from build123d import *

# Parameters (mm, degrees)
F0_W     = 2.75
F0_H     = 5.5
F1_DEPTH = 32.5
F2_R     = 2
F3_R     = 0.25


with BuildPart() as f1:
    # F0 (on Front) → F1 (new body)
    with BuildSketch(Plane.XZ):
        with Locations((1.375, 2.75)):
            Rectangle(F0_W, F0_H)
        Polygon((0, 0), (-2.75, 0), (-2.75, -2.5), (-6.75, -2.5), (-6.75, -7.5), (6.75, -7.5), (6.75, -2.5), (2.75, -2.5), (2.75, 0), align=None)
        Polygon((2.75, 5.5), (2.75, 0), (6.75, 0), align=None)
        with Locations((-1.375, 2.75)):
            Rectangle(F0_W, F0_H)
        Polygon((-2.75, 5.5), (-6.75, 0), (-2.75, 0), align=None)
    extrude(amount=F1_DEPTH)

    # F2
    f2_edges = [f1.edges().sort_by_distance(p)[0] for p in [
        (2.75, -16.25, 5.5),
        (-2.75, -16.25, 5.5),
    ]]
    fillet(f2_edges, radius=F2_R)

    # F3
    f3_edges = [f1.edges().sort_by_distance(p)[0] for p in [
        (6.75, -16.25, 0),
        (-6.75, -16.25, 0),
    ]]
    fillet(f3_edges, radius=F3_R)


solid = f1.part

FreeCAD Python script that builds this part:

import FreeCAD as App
import Part
import Sketcher
from FreeCAD import Vector


def edges_at(feature, points):
    """Names of the edges that pass closest to the given points."""
    edges = feature.Shape.Edges
    near = lambda p: min(range(len(edges)), key=lambda i: edges[i].distToShape(Part.Vertex(*p))[0])
    return sorted({f"Edge{near(p) + 1}" for p in points})

doc = App.newDocument("Part")
params = doc.addObject("Spreadsheet::Sheet", "Params")
for row, (alias, value) in enumerate([
    ("sketch1_width", "4 mm"),
    ("sketch1_height", "5 mm"),
    ("sketch1_width2", "13.5 mm"),
    ("sketch1_height2", "2.5 mm"),
    ("pad1_length", "32.5 mm"),
    ("fillet_radius", "2 mm"),
    ("fillet2_radius", "0.25 mm"),
], start=1):
    params.set(f"A{row}", alias)
    params.set(f"B{row}", "=" + value)
    params.setAlias(f"B{row}", alias)

body = doc.addObject("PartDesign::Body", "Body")

# Sketch on XZ plane
sketch1 = doc.addObject("Sketcher::SketchObject", "Sketch")
body.addObject(sketch1)
sketch1.AttachmentSupport = (doc.XZ_Plane, [""])
sketch1.MapMode = "FlatFace"
sketch1.addGeometry([
    Part.LineSegment(Vector(-2.75, -2.5, 0), Vector(-6.75, -2.5, 0)),  # 0
    Part.LineSegment(Vector(-6.75, -2.5, 0), Vector(-6.75, -7.5, 0)),  # 1
    Part.LineSegment(Vector(-6.75, -7.5, 0), Vector(6.75, -7.5, 0)),  # 2
    Part.LineSegment(Vector(6.75, -7.5, 0), Vector(6.75, -2.5, 0)),  # 3
    Part.LineSegment(Vector(6.75, -2.5, 0), Vector(2.75, -2.5, 0)),  # 4
    Part.LineSegment(Vector(2.75, -2.5, 0), Vector(2.75, 0, 0)),  # 5
    Part.LineSegment(Vector(2.75, 0, 0), Vector(6.75, 0, 0)),  # 6
    Part.LineSegment(Vector(6.75, 0, 0), Vector(2.75, 5.5, 0)),  # 7
    Part.LineSegment(Vector(2.75, 5.5, 0), Vector(-2.75, 5.5, 0)),  # 8
    Part.LineSegment(Vector(-2.75, 5.5, 0), Vector(-6.75, 0, 0)),  # 9
    Part.LineSegment(Vector(-6.75, 0, 0), Vector(-2.75, 0, 0)),  # 10
    Part.LineSegment(Vector(-2.75, 0, 0), Vector(-2.75, -2.5, 0)),  # 11
], False)
sketch1.addConstraint([
    Sketcher.Constraint("Coincident", 0, 2, 1, 1),
    Sketcher.Constraint("Coincident", 1, 2, 2, 1),
    Sketcher.Constraint("Coincident", 2, 2, 3, 1),
    Sketcher.Constraint("Coincident", 3, 2, 4, 1),
    Sketcher.Constraint("Coincident", 4, 2, 5, 1),
    Sketcher.Constraint("Coincident", 5, 2, 6, 1),
    Sketcher.Constraint("Coincident", 6, 2, 7, 1),
    Sketcher.Constraint("Coincident", 7, 2, 8, 1),
    Sketcher.Constraint("Coincident", 8, 2, 9, 1),
    Sketcher.Constraint("Coincident", 9, 2, 10, 1),
    Sketcher.Constraint("Coincident", 10, 2, 11, 1),
    Sketcher.Constraint("Coincident", 11, 2, 0, 1),
    Sketcher.Constraint("Horizontal", 0),
    Sketcher.Constraint("Vertical", 1),
    Sketcher.Constraint("Horizontal", 2),
    Sketcher.Constraint("Vertical", 3),
    Sketcher.Constraint("Horizontal", 4),
    Sketcher.Constraint("Vertical", 5),
    Sketcher.Constraint("Horizontal", 6),
    Sketcher.Constraint("Horizontal", 8),
    Sketcher.Constraint("Horizontal", 10),
    Sketcher.Constraint("Vertical", 11),
    Sketcher.Constraint("Symmetric", 6, 2, 9, 2, -1, 1),
    Sketcher.Constraint("Symmetric", 0, 2, 3, 2, -2),
    Sketcher.Constraint("Symmetric", 5, 2, 10, 2, -2),
    Sketcher.Constraint("Vertical", 3, 2, 6, 2),
    Sketcher.Constraint("Vertical", 5, 2, 7, 2),
    Sketcher.Constraint("Vertical", 8, 2, 10, 2),
    Sketcher.Constraint("DistanceX", 0, 2, 0, 1, 4.0),
    Sketcher.Constraint("DistanceY", 1, 2, 1, 1, 5.0),
    Sketcher.Constraint("DistanceX", 2, 1, 2, 2, 13.5),
    Sketcher.Constraint("DistanceY", 5, 1, 5, 2, 2.5),
    Sketcher.Constraint("DistanceY", 4, 2, 7, 2, 8.0),
])
sketch1.setExpression("Constraints[28]", "Params.sketch1_width")
sketch1.setExpression("Constraints[29]", "Params.sketch1_height")
sketch1.setExpression("Constraints[30]", "Params.sketch1_width2")
sketch1.setExpression("Constraints[31]", "Params.sketch1_height2")
pad1 = doc.addObject("PartDesign::Pad", "Pad")
body.addObject(pad1)
pad1.Profile = sketch1
pad1.setExpression("Length", "Params.pad1_length")
doc.recompute()

fillet = doc.addObject("PartDesign::Fillet", "Fillet")
body.addObject(fillet)
fillet.Base = (pad1, edges_at(pad1, [(2.75, -16.25, 5.5), (-2.75, -16.25, 5.5)]))
fillet.setExpression("Radius", "Params.fillet_radius")
doc.recompute()

fillet2 = doc.addObject("PartDesign::Fillet", "Fillet001")
body.addObject(fillet2)
fillet2.Base = (fillet, edges_at(fillet, [(6.75, -16.25, 0), (-6.75, -16.25, 0)]))
fillet2.setExpression("Radius", "Params.fillet2_radius")

doc.recompute()
